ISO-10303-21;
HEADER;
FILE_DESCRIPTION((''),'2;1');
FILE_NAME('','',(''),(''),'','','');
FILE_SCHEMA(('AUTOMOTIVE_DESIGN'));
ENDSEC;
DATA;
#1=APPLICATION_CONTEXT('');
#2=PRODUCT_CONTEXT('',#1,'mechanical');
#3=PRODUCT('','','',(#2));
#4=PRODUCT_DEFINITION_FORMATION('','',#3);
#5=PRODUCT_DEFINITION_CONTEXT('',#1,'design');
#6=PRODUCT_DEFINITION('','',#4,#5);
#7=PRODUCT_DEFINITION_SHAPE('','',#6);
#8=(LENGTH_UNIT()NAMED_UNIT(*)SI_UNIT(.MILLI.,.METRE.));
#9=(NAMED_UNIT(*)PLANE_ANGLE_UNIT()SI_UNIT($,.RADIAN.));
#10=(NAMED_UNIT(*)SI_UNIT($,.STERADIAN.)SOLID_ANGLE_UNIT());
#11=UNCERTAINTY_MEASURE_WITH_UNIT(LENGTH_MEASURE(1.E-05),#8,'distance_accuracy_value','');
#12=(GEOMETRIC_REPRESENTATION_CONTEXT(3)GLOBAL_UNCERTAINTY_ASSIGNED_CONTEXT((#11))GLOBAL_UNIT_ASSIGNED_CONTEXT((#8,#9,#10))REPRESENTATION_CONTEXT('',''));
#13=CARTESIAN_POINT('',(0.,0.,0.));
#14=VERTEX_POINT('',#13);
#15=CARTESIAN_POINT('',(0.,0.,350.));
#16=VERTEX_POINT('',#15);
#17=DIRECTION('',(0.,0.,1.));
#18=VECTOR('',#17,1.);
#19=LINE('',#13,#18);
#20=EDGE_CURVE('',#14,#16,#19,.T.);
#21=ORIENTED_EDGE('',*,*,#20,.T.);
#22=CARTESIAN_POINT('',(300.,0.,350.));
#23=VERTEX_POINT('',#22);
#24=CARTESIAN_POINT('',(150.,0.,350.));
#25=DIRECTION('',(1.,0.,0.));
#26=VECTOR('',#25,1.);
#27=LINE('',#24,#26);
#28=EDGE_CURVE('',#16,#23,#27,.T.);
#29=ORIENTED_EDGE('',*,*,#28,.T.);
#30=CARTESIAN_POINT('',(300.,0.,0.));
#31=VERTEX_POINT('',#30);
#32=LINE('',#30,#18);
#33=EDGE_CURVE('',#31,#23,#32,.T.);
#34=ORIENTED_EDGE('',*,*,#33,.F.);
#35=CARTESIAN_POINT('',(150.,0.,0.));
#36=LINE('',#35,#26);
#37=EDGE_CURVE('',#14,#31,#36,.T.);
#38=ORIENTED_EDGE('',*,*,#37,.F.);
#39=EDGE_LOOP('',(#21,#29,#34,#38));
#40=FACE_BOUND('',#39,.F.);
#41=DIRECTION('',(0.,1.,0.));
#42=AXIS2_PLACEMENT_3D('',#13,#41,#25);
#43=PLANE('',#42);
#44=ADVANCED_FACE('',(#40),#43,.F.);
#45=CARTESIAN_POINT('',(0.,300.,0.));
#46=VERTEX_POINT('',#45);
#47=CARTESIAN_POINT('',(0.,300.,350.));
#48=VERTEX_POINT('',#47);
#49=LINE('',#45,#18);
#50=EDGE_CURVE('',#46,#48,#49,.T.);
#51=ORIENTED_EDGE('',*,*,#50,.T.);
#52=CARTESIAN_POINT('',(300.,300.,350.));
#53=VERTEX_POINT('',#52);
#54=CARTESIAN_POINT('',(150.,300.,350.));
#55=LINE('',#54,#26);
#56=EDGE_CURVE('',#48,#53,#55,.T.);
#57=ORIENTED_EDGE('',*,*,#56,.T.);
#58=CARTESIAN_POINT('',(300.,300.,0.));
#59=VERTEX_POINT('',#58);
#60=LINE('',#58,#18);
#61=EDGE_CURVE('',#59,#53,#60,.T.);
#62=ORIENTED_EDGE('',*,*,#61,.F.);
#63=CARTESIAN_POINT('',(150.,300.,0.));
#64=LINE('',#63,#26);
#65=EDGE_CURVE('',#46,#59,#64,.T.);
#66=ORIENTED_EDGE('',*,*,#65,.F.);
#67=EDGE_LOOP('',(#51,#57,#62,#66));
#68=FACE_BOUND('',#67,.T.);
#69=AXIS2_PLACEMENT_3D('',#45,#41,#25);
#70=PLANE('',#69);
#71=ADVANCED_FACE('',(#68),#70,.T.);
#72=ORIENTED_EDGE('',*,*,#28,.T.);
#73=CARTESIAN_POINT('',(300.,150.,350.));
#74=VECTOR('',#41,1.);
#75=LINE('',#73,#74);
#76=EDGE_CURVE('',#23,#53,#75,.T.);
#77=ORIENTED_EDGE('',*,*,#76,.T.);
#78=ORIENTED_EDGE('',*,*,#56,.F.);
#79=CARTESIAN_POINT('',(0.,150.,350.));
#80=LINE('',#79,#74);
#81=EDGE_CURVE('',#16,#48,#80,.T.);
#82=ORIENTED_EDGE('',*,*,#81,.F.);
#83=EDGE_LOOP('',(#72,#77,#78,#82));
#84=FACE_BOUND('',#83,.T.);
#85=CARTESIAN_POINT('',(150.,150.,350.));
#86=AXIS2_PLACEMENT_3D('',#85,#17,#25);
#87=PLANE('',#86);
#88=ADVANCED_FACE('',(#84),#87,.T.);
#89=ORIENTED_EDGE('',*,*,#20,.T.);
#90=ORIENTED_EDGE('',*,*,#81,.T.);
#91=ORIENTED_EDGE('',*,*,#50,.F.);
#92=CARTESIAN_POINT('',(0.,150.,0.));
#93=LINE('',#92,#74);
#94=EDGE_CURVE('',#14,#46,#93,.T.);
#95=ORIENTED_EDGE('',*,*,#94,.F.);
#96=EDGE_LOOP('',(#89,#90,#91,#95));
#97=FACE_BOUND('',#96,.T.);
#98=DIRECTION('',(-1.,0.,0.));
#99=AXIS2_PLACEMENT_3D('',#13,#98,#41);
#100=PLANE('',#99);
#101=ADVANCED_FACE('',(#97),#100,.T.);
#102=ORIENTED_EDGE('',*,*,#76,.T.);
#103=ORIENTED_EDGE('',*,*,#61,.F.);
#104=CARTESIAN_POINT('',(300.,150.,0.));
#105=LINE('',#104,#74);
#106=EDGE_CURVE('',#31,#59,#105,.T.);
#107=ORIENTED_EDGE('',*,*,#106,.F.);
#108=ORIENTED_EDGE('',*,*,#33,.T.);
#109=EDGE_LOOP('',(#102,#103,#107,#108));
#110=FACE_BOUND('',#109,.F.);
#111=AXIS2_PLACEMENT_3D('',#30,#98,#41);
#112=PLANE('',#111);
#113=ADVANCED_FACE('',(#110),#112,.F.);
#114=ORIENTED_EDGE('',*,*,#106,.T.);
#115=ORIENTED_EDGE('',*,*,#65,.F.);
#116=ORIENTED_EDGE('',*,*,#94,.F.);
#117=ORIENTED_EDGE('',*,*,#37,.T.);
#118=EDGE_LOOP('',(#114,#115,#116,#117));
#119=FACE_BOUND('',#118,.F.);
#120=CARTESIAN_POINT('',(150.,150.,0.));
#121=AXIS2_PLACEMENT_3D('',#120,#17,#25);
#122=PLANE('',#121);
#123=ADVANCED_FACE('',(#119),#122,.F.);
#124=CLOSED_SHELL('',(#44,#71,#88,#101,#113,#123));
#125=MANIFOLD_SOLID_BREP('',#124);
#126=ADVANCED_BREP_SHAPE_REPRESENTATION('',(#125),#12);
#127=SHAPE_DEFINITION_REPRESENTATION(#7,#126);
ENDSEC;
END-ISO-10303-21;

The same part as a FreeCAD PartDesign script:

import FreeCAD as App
import Part
import Sketcher
from FreeCAD import Vector
Q = App.Units.Quantity

doc = App.newDocument("Part")
params = doc.addObject("Spreadsheet::Sheet", "Params")
for row, (alias, value) in enumerate([
    ("sketch1_width", "300 mm"),
    ("pad1_length", "350 mm"),
], start=1):
    params.set(f"A{row}", alias)
    params.set(f"B{row}", "=" + value)
    params.setAlias(f"B{row}", alias)

body = doc.addObject("PartDesign::Body", "Body")

# Sketch on XY plane
sketch1 = doc.addObject("Sketcher::SketchObject", "Sketch")
body.addObject(sketch1)
sketch1.AttachmentSupport = (doc.XY_Plane, [""])
sketch1.MapMode = "FlatFace"
sketch1.addGeometry([
    Part.LineSegment(Vector(0, 300, 0), Vector(0, 0, 0)),
    Part.LineSegment(Vector(0, 0, 0), Vector(300, 0, 0)),
    Part.LineSegment(Vector(300, 0, 0), Vector(300, 300, 0)),
    Part.LineSegment(Vector(300, 300, 0), Vector(0, 300, 0)),
], False)
sketch1.addConstraint([
    Sketcher.Constraint("Coincident", 0, 2, 1, 1),
    Sketcher.Constraint("Coincident", 1, 2, 2, 1),
    Sketcher.Constraint("Coincident", 2, 2, 3, 1),
    Sketcher.Constraint("Coincident", 3, 2, 0, 1),
    Sketcher.Constraint("Vertical", 0),
    Sketcher.Constraint("Horizontal", 1),
    Sketcher.Constraint("Vertical", 2),
    Sketcher.Constraint("Horizontal", 3),
    Sketcher.Constraint("Coincident", 0, 2, -1, 1),
    Sketcher.Constraint("Equal", 3, 0),
    Sketcher.Constraint("DistanceX", 1, 1, 1, 2, Q("300 mm")),
])
sketch1.setExpression("Constraints[10]", "Params.sketch1_width")
pad1 = doc.addObject("PartDesign::Pad", "Pad")
body.addObject(pad1)
pad1.Profile = sketch1
pad1.setExpression("Length", "Params.pad1_length")

doc.recompute()
